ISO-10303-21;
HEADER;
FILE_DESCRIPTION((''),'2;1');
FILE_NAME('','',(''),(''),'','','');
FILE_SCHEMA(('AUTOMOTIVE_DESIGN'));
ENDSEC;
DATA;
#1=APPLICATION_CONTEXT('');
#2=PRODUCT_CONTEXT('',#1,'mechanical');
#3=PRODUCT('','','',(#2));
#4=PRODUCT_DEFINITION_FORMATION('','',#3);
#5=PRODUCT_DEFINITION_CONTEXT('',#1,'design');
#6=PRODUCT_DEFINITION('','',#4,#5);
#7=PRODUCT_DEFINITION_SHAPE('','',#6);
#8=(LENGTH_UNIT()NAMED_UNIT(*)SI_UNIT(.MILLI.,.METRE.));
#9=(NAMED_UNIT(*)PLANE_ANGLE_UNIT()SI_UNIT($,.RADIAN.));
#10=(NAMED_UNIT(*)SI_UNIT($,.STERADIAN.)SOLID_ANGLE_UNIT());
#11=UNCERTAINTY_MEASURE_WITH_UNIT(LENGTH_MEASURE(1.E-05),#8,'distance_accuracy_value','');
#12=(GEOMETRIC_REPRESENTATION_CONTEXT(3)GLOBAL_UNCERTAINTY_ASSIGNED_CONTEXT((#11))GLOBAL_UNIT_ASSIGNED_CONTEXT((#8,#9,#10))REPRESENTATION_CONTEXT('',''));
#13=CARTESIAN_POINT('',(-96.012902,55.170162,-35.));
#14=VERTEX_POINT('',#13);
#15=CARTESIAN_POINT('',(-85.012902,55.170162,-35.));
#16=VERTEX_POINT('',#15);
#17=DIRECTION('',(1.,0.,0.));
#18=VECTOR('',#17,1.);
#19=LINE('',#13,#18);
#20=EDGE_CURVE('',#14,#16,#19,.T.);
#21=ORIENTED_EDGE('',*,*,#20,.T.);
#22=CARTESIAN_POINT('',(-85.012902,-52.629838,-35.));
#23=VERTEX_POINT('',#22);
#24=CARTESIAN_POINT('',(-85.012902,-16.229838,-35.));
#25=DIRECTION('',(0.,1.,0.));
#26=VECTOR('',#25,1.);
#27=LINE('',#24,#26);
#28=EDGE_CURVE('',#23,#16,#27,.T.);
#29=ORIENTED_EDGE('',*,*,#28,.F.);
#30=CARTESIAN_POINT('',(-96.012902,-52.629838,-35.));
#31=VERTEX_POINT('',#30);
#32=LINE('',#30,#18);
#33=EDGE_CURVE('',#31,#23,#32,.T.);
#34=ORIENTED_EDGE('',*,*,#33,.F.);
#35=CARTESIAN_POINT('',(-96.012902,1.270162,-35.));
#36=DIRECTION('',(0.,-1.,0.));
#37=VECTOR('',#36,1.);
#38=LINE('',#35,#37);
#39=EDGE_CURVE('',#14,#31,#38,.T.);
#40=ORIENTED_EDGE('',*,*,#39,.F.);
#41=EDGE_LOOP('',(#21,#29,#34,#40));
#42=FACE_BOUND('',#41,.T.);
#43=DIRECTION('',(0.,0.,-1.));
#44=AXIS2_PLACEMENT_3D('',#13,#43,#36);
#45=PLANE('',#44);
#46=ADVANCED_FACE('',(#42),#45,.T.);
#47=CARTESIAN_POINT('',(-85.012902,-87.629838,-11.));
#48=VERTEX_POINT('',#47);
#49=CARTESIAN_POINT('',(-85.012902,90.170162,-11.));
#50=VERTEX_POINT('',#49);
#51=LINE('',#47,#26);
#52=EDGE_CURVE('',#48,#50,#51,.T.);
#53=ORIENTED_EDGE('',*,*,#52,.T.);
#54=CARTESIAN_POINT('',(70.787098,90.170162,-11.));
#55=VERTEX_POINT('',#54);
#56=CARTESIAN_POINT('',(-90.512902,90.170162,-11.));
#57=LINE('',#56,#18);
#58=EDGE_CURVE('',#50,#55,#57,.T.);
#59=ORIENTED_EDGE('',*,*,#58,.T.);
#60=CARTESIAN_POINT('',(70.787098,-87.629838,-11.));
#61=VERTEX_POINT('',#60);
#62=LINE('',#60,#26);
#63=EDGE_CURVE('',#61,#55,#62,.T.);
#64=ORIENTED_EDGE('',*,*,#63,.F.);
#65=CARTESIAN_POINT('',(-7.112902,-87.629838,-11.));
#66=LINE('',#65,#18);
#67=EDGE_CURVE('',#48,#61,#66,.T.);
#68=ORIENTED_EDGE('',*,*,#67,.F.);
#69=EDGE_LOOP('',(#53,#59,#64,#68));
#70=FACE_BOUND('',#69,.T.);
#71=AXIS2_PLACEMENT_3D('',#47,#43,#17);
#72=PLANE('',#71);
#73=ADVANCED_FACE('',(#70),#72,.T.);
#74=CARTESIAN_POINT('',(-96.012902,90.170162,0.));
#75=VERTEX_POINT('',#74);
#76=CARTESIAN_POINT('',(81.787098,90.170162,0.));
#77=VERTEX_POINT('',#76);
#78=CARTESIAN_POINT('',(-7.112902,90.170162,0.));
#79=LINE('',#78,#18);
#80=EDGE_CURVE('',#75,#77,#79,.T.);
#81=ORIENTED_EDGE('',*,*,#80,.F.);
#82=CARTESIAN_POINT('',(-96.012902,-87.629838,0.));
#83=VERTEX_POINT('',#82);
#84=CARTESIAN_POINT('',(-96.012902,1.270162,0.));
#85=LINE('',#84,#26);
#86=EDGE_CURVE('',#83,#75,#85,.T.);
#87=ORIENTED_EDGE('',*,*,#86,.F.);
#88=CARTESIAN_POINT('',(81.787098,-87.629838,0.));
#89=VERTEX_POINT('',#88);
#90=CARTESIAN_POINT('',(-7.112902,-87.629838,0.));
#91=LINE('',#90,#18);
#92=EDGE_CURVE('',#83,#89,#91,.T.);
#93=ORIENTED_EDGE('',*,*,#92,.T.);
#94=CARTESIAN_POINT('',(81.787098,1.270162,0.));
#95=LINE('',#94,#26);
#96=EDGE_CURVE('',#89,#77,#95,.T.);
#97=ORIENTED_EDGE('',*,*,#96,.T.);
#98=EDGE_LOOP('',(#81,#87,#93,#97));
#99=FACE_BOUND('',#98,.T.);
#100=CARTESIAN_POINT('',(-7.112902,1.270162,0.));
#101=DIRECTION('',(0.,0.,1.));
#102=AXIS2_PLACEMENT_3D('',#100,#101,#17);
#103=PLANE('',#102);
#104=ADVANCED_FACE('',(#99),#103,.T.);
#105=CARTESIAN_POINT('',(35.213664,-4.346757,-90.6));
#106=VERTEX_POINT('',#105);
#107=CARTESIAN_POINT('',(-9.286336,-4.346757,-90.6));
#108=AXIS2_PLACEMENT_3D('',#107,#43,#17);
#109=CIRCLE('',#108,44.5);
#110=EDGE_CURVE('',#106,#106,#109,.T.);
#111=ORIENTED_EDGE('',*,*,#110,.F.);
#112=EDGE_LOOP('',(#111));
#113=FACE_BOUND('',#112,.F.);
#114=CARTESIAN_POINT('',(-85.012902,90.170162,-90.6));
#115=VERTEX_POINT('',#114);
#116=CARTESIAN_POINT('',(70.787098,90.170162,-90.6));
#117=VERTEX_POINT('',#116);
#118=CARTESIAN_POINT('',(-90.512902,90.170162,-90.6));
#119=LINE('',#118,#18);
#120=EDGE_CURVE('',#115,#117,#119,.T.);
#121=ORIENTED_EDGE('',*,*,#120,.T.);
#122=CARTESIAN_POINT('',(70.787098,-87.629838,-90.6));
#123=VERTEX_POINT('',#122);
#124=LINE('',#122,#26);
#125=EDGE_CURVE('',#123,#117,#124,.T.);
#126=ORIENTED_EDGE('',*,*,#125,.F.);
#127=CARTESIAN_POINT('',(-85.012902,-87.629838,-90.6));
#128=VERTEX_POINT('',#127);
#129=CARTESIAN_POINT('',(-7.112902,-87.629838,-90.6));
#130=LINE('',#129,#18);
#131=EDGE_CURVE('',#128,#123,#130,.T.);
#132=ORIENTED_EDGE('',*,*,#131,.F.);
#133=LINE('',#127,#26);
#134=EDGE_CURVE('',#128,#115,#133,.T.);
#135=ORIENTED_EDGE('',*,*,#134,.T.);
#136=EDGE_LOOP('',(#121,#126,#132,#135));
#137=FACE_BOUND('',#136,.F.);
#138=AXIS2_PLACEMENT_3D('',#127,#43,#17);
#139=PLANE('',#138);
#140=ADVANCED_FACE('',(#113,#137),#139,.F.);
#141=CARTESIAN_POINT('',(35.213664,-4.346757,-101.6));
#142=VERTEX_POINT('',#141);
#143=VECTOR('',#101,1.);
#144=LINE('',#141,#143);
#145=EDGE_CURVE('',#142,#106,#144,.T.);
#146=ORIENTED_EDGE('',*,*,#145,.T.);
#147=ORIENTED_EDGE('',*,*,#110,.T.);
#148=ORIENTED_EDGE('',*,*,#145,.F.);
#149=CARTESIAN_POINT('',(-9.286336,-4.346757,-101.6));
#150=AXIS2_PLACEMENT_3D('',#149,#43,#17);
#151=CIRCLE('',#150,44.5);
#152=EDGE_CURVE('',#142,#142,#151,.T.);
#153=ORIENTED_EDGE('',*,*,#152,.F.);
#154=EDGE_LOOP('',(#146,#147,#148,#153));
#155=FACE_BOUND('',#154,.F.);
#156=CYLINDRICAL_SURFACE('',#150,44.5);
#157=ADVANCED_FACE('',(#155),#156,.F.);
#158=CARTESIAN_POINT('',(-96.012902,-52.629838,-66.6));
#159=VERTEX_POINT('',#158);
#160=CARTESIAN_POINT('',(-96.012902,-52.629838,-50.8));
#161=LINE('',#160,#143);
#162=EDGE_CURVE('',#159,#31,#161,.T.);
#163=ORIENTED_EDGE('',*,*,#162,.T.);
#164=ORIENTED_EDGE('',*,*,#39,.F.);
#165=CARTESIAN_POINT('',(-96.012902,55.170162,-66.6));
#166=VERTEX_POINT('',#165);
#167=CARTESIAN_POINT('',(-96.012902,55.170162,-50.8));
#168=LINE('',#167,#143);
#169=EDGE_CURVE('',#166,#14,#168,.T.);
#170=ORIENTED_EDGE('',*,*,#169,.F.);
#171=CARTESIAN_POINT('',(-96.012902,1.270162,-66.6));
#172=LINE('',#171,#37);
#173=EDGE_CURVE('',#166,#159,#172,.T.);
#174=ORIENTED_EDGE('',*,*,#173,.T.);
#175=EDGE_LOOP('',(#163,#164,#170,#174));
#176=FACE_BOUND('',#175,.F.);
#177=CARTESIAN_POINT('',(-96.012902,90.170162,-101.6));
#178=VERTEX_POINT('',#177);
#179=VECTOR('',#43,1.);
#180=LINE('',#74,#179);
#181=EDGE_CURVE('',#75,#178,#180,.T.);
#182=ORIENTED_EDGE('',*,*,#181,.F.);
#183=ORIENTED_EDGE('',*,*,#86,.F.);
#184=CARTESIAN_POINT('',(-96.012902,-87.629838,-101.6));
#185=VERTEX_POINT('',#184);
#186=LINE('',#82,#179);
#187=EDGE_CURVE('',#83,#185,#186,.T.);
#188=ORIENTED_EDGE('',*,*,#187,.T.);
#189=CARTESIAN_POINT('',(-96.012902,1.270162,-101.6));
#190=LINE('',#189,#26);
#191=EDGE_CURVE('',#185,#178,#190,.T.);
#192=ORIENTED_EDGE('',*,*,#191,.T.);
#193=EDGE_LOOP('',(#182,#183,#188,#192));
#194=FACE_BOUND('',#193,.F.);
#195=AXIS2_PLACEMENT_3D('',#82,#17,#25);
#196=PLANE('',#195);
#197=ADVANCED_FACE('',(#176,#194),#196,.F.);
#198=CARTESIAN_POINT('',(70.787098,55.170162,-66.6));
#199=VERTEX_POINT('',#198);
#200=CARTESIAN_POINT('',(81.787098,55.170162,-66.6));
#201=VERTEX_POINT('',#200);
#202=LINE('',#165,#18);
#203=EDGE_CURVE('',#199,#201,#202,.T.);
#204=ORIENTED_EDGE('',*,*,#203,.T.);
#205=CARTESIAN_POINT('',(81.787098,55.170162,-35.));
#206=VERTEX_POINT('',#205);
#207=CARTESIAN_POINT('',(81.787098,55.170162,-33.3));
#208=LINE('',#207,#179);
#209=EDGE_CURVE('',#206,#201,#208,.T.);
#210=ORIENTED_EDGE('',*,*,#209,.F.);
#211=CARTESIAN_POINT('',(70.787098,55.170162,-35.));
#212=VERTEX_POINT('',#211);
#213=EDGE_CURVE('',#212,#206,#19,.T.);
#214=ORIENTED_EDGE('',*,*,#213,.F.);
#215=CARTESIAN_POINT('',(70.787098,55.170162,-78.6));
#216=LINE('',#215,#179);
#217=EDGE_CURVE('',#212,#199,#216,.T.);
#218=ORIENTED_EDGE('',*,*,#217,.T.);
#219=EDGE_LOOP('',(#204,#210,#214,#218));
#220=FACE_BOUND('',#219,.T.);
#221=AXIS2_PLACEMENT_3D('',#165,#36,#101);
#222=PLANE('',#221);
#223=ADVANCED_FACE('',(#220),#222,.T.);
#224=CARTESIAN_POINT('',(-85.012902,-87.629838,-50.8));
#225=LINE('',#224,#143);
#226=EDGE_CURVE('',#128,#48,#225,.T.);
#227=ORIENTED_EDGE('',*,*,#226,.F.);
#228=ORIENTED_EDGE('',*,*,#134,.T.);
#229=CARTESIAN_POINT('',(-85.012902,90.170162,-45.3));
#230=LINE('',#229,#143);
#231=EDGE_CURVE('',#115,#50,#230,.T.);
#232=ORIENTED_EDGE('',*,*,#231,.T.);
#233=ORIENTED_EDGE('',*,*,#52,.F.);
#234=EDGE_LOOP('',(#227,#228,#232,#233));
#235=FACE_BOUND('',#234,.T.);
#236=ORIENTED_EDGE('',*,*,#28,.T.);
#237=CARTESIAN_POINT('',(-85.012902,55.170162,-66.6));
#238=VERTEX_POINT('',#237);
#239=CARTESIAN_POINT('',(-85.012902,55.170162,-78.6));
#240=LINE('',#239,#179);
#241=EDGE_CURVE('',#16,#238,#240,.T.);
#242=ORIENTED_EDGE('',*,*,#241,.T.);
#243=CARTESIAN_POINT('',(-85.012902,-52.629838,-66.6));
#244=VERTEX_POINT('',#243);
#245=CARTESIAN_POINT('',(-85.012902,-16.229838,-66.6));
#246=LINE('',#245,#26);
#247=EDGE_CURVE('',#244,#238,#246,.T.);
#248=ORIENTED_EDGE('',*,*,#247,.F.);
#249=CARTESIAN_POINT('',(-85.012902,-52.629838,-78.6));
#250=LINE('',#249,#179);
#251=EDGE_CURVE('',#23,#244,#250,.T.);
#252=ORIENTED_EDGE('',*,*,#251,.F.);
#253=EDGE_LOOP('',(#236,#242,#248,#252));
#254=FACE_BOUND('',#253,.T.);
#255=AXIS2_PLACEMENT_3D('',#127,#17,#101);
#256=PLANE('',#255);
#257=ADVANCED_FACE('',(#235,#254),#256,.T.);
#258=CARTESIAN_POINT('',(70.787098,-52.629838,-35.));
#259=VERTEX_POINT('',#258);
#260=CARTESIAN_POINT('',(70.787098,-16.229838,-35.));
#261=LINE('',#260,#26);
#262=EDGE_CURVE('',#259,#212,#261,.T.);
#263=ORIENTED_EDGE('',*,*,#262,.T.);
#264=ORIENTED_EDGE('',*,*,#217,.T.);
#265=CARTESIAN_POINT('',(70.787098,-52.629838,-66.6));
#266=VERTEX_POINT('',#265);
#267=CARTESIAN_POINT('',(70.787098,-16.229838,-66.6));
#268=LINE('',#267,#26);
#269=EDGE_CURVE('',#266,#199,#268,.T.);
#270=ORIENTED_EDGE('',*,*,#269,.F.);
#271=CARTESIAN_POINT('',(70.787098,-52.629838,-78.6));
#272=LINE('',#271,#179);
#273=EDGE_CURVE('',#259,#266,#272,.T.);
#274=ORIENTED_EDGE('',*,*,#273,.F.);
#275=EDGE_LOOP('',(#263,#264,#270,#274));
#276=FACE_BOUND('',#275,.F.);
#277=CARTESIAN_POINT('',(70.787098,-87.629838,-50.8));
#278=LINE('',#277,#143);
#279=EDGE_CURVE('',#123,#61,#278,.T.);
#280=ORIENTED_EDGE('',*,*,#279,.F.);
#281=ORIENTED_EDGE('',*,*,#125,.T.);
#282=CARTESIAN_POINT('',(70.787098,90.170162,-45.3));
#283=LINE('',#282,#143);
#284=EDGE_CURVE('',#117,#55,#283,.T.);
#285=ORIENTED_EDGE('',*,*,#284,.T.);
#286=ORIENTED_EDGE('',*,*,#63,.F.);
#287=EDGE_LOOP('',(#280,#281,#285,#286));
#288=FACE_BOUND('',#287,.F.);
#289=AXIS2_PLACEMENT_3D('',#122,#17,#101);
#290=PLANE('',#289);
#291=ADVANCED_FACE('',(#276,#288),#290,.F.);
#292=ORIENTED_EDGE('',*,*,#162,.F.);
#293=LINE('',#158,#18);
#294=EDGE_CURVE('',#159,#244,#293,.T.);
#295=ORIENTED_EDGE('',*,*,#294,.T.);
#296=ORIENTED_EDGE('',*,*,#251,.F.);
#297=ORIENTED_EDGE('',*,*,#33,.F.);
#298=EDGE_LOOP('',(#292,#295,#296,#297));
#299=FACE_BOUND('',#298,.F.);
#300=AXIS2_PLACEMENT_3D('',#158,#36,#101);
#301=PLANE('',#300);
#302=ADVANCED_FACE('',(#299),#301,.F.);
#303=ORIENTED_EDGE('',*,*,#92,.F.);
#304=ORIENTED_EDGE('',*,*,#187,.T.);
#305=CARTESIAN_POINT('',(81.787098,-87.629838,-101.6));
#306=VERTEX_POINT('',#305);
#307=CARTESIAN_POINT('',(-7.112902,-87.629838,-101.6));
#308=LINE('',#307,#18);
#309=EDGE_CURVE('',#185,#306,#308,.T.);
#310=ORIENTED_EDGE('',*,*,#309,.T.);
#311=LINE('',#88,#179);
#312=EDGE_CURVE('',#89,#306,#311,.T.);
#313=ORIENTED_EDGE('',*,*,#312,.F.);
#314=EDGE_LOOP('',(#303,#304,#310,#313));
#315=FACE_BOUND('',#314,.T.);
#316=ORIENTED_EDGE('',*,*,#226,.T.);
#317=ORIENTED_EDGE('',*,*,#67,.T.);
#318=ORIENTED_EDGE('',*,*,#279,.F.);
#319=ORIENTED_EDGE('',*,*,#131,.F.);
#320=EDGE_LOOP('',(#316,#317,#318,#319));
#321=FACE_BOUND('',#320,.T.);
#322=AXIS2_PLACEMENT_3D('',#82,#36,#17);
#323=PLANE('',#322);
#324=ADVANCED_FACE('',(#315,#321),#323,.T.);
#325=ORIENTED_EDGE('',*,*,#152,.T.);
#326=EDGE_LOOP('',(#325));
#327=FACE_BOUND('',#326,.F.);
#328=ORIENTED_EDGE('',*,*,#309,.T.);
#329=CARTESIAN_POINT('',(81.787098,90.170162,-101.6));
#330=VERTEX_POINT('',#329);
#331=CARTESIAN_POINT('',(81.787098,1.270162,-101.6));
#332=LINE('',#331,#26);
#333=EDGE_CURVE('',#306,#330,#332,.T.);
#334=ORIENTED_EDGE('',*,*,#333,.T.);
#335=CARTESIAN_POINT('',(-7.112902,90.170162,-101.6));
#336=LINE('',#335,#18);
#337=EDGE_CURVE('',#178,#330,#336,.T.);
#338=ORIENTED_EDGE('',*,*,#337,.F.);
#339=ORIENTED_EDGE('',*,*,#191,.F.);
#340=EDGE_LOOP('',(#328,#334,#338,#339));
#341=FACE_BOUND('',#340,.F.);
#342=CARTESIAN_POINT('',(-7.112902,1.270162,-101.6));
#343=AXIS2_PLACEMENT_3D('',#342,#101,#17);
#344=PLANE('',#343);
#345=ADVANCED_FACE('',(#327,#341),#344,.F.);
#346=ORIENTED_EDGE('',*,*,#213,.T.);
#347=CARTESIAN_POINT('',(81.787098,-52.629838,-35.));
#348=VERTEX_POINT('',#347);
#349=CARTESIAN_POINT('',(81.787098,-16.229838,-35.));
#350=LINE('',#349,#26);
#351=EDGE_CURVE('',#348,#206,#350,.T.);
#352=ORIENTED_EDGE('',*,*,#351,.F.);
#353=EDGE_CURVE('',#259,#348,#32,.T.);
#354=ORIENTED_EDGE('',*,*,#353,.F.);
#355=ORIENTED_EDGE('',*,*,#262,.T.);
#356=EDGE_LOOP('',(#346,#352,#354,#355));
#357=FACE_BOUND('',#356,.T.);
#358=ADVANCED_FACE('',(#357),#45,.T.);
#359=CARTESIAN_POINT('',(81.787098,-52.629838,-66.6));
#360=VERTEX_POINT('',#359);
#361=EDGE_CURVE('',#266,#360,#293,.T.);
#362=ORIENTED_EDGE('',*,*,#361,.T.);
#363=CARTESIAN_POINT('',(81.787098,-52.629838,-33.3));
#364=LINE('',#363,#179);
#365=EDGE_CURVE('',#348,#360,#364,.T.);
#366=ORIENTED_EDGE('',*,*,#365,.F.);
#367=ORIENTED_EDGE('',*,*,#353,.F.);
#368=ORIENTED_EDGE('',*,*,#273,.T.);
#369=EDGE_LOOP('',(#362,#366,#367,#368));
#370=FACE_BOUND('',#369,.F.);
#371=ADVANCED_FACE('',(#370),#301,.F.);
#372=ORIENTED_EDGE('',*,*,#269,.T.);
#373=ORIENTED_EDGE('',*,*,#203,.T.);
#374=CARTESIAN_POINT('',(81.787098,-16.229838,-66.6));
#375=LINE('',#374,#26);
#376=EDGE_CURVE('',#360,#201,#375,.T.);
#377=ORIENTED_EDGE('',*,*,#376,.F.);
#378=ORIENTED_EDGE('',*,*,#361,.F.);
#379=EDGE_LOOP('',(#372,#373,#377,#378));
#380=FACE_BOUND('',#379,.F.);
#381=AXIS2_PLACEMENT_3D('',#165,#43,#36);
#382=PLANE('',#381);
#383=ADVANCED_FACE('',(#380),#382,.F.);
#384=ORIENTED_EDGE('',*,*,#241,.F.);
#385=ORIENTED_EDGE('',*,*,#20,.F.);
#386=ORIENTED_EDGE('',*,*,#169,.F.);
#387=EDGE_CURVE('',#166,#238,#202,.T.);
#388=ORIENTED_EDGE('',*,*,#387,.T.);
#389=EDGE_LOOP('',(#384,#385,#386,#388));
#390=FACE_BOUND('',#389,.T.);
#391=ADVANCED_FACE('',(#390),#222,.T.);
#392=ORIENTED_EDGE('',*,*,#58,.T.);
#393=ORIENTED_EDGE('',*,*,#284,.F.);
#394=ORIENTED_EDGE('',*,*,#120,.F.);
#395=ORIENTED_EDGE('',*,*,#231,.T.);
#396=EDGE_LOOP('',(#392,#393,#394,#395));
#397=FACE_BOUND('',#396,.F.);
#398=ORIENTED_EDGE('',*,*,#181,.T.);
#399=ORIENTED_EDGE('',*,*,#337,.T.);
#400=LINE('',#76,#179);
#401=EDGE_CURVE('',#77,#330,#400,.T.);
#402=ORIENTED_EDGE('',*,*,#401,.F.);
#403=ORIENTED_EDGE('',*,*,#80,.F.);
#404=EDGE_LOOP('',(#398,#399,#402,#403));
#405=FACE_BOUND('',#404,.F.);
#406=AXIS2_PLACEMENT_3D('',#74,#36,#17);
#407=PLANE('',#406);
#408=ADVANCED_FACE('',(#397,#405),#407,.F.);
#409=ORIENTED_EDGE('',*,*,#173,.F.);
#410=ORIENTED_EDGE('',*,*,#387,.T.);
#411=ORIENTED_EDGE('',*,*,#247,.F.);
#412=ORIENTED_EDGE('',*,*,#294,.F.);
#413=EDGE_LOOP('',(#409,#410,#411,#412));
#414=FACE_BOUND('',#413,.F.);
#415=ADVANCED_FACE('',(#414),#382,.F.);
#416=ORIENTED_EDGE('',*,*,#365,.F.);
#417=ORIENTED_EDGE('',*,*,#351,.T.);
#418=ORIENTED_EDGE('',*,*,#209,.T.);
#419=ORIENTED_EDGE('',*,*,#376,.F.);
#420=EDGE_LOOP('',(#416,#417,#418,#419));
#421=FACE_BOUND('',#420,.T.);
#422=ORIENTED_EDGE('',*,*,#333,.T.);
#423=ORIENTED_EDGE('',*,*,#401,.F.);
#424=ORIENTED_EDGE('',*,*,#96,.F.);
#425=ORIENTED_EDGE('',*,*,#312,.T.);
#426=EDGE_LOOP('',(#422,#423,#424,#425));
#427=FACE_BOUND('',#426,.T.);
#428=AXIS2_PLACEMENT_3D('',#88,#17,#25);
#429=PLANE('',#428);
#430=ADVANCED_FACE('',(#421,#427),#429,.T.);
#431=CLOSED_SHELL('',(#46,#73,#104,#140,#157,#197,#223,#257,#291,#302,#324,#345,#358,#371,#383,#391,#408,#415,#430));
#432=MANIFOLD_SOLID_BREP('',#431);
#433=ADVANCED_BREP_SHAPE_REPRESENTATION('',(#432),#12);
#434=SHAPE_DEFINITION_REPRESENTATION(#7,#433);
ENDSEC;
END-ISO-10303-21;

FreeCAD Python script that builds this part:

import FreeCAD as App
import Part
import Sketcher
from FreeCAD import Vector
Q = App.Units.Quantity

doc = App.newDocument("Part")
body = doc.addObject("PartDesign::Body", "Body")

sketch1 = body.newObject("Sketcher::SketchObject", "Sketch")
sketch1.AttachmentSupport = (doc.getObject("XY_Plane"), [""])
sketch1.MapMode = "FlatFace"
sketch1.addGeometry(Part.LineSegment(Vector(-96, 90, 0), Vector(-96, -88, 0)), False)
sketch1.addGeometry(Part.LineSegment(Vector(-96, -88, 0), Vector(82, -88, 0)), False)
sketch1.addGeometry(Part.LineSegment(Vector(82, -88, 0), Vector(82, 90, 0)), False)
sketch1.addGeometry(Part.LineSegment(Vector(82, 90, 0), Vector(-96, 90, 0)), False)
sketch1.addConstraint(Sketcher.Constraint("Coincident", 0, 2, 1, 1))
sketch1.addConstraint(Sketcher.Constraint("Coincident", 1, 2, 2, 1))
sketch1.addConstraint(Sketcher.Constraint("Coincident", 2, 2, 3, 1))
sketch1.addConstraint(Sketcher.Constraint("Coincident", 3, 2, 0, 1))
sketch1.addConstraint(Sketcher.Constraint("Vertical", 0))
sketch1.addConstraint(Sketcher.Constraint("Horizontal", 1))
sketch1.addConstraint(Sketcher.Constraint("Vertical", 2))
sketch1.addConstraint(Sketcher.Constraint("Horizontal", 3))
sketch1.addConstraint(Sketcher.Constraint("Equal", 3, 0))
sketch1.addConstraint(Sketcher.Constraint("DistanceX", 1, 1, 1, 2, Q("177.8 mm")))
sketch1.addConstraint(Sketcher.Constraint("DistanceX", 0, 2, -1, 1, Q("96.012902 mm")))
sketch1.addConstraint(Sketcher.Constraint("DistanceY", 0, 2, -1, 1, Q("87.629838 mm")))
pad1 = body.newObject("PartDesign::Pad", "Pad")
pad1.Profile = sketch1
pad1.Length = 101.6
pad1.Reversed = True

sketch2 = body.newObject("Sketcher::SketchObject", "Sketch001")
sketch2.AttachmentSupport = (doc.getObject("XZ_Plane"), [""])
sketch2.MapMode = "FlatFace"
sketch2.AttachmentOffset = App.Placement(Vector(0, 0, 87.629838), App.Rotation())
sketch2.addGeometry(Part.LineSegment(Vector(-85, -11, 0), Vector(-85, -91, 0)), False)
sketch2.addGeometry(Part.LineSegment(Vector(-85, -91, 0), Vector(71, -91, 0)), False)
sketch2.addGeometry(Part.LineSegment(Vector(71, -91, 0), Vector(71, -11, 0)), False)
sketch2.addGeometry(Part.LineSegment(Vector(71, -11, 0), Vector(-85, -11, 0)), False)
sketch2.addConstraint(Sketcher.Constraint("Coincident", 0, 2, 1, 1))
sketch2.addConstraint(Sketcher.Constraint("Coincident", 1, 2, 2, 1))
sketch2.addConstraint(Sketcher.Constraint("Coincident", 2, 2, 3, 1))
sketch2.addConstraint(Sketcher.Constraint("Coincident", 3, 2, 0, 1))
sketch2.addConstraint(Sketcher.Constraint("Vertical", 0))
sketch2.addConstraint(Sketcher.Constraint("Horizontal", 1))
sketch2.addConstraint(Sketcher.Constraint("Vertical", 2))
sketch2.addConstraint(Sketcher.Constraint("Horizontal", 3))
sketch2.addConstraint(Sketcher.Constraint("DistanceX", 1, 1, 1, 2, Q("155.8 mm")))
sketch2.addConstraint(Sketcher.Constraint("DistanceY", 0, 2, 0, 1, Q("79.6 mm")))
sketch2.addConstraint(Sketcher.Constraint("DistanceY", 2, 2, -1, 1, Q("11 mm")))
sketch2.addConstraint(Sketcher.Constraint("DistanceX", 0, 2, -1, 1, Q("85.012902 mm")))
pocket1 = body.newObject("PartDesign::Pocket", "Pocket")
pocket1.Profile = sketch2
pocket1.Type = "ThroughAll"

sketch3 = body.newObject("Sketcher::SketchObject", "Sketch002")
sketch3.AttachmentSupport = (doc.getObject("YZ_Plane"), [""])
sketch3.MapMode = "FlatFace"
sketch3.AttachmentOffset = App.Placement(Vector(0, 0, -96.012902), App.Rotation())
sketch3.addGeometry(Part.LineSegment(Vector(55, -35, 0), Vector(55, -67, 0)), False)
sketch3.addGeometry(Part.LineSegment(Vector(55, -67, 0), Vector(-53, -67, 0)), False)
sketch3.addGeometry(Part.LineSegment(Vector(-53, -67, 0), Vector(-53, -35, 0)), False)
sketch3.addGeometry(Part.LineSegment(Vector(-53, -35, 0), Vector(55, -35, 0)), False)
sketch3.addConstraint(Sketcher.Constraint("Coincident", 0, 2, 1, 1))
sketch3.addConstraint(Sketcher.Constraint("Coincident", 1, 2, 2, 1))
sketch3.addConstraint(Sketcher.Constraint("Coincident", 2, 2, 3, 1))
sketch3.addConstraint(Sketcher.Constraint("Coincident", 3, 2, 0, 1))
sketch3.addConstraint(Sketcher.Constraint("Vertical", 0))
sketch3.addConstraint(Sketcher.Constraint("Horizontal", 1))
sketch3.addConstraint(Sketcher.Constraint("Vertical", 2))
sketch3.addConstraint(Sketcher.Constraint("Horizontal", 3))
sketch3.addConstraint(Sketcher.Constraint("DistanceX", 1, 2, 1, 1, Q("107.8 mm")))
sketch3.addConstraint(Sketcher.Constraint("DistanceY", 0, 2, 0, 1, Q("31.6 mm")))
sketch3.addConstraint(Sketcher.Constraint("DistanceY", 2, 2, -1, 1, Q("35 mm")))
sketch3.addConstraint(Sketcher.Constraint("DistanceX", -1, 1, 0, 2, Q("55.170162 mm")))
pocket2 = body.newObject("PartDesign::Pocket", "Pocket001")
pocket2.Profile = sketch3
pocket2.Type = "ThroughAll"
pocket2.Reversed = True

sketch4 = body.newObject("Sketcher::SketchObject", "Sketch003")
sketch4.AttachmentSupport = (doc.getObject("XY_Plane"), [""])
sketch4.MapMode = "FlatFace"
sketch4.AttachmentOffset = App.Placement(Vector(0, 0, -101.6), App.Rotation())
sketch4.addGeometry(Part.Circle(Vector(-9, -4, 0), Vector(0, 0, 1), 44), False)
sketch4.addConstraint(Sketcher.Constraint("Diameter", 0, Q("89 mm")))
sketch4.addConstraint(Sketcher.Constraint("DistanceX", 0, 3, -1, 1, Q("9.286336 mm")))
sketch4.addConstraint(Sketcher.Constraint("DistanceY", 0, 3, -1, 1, Q("4.346757 mm")))
pocket3 = body.newObject("PartDesign::Pocket", "Pocket002")
pocket3.Profile = sketch4
pocket3.Length = 25
pocket3.Reversed = True

doc.recompute()
